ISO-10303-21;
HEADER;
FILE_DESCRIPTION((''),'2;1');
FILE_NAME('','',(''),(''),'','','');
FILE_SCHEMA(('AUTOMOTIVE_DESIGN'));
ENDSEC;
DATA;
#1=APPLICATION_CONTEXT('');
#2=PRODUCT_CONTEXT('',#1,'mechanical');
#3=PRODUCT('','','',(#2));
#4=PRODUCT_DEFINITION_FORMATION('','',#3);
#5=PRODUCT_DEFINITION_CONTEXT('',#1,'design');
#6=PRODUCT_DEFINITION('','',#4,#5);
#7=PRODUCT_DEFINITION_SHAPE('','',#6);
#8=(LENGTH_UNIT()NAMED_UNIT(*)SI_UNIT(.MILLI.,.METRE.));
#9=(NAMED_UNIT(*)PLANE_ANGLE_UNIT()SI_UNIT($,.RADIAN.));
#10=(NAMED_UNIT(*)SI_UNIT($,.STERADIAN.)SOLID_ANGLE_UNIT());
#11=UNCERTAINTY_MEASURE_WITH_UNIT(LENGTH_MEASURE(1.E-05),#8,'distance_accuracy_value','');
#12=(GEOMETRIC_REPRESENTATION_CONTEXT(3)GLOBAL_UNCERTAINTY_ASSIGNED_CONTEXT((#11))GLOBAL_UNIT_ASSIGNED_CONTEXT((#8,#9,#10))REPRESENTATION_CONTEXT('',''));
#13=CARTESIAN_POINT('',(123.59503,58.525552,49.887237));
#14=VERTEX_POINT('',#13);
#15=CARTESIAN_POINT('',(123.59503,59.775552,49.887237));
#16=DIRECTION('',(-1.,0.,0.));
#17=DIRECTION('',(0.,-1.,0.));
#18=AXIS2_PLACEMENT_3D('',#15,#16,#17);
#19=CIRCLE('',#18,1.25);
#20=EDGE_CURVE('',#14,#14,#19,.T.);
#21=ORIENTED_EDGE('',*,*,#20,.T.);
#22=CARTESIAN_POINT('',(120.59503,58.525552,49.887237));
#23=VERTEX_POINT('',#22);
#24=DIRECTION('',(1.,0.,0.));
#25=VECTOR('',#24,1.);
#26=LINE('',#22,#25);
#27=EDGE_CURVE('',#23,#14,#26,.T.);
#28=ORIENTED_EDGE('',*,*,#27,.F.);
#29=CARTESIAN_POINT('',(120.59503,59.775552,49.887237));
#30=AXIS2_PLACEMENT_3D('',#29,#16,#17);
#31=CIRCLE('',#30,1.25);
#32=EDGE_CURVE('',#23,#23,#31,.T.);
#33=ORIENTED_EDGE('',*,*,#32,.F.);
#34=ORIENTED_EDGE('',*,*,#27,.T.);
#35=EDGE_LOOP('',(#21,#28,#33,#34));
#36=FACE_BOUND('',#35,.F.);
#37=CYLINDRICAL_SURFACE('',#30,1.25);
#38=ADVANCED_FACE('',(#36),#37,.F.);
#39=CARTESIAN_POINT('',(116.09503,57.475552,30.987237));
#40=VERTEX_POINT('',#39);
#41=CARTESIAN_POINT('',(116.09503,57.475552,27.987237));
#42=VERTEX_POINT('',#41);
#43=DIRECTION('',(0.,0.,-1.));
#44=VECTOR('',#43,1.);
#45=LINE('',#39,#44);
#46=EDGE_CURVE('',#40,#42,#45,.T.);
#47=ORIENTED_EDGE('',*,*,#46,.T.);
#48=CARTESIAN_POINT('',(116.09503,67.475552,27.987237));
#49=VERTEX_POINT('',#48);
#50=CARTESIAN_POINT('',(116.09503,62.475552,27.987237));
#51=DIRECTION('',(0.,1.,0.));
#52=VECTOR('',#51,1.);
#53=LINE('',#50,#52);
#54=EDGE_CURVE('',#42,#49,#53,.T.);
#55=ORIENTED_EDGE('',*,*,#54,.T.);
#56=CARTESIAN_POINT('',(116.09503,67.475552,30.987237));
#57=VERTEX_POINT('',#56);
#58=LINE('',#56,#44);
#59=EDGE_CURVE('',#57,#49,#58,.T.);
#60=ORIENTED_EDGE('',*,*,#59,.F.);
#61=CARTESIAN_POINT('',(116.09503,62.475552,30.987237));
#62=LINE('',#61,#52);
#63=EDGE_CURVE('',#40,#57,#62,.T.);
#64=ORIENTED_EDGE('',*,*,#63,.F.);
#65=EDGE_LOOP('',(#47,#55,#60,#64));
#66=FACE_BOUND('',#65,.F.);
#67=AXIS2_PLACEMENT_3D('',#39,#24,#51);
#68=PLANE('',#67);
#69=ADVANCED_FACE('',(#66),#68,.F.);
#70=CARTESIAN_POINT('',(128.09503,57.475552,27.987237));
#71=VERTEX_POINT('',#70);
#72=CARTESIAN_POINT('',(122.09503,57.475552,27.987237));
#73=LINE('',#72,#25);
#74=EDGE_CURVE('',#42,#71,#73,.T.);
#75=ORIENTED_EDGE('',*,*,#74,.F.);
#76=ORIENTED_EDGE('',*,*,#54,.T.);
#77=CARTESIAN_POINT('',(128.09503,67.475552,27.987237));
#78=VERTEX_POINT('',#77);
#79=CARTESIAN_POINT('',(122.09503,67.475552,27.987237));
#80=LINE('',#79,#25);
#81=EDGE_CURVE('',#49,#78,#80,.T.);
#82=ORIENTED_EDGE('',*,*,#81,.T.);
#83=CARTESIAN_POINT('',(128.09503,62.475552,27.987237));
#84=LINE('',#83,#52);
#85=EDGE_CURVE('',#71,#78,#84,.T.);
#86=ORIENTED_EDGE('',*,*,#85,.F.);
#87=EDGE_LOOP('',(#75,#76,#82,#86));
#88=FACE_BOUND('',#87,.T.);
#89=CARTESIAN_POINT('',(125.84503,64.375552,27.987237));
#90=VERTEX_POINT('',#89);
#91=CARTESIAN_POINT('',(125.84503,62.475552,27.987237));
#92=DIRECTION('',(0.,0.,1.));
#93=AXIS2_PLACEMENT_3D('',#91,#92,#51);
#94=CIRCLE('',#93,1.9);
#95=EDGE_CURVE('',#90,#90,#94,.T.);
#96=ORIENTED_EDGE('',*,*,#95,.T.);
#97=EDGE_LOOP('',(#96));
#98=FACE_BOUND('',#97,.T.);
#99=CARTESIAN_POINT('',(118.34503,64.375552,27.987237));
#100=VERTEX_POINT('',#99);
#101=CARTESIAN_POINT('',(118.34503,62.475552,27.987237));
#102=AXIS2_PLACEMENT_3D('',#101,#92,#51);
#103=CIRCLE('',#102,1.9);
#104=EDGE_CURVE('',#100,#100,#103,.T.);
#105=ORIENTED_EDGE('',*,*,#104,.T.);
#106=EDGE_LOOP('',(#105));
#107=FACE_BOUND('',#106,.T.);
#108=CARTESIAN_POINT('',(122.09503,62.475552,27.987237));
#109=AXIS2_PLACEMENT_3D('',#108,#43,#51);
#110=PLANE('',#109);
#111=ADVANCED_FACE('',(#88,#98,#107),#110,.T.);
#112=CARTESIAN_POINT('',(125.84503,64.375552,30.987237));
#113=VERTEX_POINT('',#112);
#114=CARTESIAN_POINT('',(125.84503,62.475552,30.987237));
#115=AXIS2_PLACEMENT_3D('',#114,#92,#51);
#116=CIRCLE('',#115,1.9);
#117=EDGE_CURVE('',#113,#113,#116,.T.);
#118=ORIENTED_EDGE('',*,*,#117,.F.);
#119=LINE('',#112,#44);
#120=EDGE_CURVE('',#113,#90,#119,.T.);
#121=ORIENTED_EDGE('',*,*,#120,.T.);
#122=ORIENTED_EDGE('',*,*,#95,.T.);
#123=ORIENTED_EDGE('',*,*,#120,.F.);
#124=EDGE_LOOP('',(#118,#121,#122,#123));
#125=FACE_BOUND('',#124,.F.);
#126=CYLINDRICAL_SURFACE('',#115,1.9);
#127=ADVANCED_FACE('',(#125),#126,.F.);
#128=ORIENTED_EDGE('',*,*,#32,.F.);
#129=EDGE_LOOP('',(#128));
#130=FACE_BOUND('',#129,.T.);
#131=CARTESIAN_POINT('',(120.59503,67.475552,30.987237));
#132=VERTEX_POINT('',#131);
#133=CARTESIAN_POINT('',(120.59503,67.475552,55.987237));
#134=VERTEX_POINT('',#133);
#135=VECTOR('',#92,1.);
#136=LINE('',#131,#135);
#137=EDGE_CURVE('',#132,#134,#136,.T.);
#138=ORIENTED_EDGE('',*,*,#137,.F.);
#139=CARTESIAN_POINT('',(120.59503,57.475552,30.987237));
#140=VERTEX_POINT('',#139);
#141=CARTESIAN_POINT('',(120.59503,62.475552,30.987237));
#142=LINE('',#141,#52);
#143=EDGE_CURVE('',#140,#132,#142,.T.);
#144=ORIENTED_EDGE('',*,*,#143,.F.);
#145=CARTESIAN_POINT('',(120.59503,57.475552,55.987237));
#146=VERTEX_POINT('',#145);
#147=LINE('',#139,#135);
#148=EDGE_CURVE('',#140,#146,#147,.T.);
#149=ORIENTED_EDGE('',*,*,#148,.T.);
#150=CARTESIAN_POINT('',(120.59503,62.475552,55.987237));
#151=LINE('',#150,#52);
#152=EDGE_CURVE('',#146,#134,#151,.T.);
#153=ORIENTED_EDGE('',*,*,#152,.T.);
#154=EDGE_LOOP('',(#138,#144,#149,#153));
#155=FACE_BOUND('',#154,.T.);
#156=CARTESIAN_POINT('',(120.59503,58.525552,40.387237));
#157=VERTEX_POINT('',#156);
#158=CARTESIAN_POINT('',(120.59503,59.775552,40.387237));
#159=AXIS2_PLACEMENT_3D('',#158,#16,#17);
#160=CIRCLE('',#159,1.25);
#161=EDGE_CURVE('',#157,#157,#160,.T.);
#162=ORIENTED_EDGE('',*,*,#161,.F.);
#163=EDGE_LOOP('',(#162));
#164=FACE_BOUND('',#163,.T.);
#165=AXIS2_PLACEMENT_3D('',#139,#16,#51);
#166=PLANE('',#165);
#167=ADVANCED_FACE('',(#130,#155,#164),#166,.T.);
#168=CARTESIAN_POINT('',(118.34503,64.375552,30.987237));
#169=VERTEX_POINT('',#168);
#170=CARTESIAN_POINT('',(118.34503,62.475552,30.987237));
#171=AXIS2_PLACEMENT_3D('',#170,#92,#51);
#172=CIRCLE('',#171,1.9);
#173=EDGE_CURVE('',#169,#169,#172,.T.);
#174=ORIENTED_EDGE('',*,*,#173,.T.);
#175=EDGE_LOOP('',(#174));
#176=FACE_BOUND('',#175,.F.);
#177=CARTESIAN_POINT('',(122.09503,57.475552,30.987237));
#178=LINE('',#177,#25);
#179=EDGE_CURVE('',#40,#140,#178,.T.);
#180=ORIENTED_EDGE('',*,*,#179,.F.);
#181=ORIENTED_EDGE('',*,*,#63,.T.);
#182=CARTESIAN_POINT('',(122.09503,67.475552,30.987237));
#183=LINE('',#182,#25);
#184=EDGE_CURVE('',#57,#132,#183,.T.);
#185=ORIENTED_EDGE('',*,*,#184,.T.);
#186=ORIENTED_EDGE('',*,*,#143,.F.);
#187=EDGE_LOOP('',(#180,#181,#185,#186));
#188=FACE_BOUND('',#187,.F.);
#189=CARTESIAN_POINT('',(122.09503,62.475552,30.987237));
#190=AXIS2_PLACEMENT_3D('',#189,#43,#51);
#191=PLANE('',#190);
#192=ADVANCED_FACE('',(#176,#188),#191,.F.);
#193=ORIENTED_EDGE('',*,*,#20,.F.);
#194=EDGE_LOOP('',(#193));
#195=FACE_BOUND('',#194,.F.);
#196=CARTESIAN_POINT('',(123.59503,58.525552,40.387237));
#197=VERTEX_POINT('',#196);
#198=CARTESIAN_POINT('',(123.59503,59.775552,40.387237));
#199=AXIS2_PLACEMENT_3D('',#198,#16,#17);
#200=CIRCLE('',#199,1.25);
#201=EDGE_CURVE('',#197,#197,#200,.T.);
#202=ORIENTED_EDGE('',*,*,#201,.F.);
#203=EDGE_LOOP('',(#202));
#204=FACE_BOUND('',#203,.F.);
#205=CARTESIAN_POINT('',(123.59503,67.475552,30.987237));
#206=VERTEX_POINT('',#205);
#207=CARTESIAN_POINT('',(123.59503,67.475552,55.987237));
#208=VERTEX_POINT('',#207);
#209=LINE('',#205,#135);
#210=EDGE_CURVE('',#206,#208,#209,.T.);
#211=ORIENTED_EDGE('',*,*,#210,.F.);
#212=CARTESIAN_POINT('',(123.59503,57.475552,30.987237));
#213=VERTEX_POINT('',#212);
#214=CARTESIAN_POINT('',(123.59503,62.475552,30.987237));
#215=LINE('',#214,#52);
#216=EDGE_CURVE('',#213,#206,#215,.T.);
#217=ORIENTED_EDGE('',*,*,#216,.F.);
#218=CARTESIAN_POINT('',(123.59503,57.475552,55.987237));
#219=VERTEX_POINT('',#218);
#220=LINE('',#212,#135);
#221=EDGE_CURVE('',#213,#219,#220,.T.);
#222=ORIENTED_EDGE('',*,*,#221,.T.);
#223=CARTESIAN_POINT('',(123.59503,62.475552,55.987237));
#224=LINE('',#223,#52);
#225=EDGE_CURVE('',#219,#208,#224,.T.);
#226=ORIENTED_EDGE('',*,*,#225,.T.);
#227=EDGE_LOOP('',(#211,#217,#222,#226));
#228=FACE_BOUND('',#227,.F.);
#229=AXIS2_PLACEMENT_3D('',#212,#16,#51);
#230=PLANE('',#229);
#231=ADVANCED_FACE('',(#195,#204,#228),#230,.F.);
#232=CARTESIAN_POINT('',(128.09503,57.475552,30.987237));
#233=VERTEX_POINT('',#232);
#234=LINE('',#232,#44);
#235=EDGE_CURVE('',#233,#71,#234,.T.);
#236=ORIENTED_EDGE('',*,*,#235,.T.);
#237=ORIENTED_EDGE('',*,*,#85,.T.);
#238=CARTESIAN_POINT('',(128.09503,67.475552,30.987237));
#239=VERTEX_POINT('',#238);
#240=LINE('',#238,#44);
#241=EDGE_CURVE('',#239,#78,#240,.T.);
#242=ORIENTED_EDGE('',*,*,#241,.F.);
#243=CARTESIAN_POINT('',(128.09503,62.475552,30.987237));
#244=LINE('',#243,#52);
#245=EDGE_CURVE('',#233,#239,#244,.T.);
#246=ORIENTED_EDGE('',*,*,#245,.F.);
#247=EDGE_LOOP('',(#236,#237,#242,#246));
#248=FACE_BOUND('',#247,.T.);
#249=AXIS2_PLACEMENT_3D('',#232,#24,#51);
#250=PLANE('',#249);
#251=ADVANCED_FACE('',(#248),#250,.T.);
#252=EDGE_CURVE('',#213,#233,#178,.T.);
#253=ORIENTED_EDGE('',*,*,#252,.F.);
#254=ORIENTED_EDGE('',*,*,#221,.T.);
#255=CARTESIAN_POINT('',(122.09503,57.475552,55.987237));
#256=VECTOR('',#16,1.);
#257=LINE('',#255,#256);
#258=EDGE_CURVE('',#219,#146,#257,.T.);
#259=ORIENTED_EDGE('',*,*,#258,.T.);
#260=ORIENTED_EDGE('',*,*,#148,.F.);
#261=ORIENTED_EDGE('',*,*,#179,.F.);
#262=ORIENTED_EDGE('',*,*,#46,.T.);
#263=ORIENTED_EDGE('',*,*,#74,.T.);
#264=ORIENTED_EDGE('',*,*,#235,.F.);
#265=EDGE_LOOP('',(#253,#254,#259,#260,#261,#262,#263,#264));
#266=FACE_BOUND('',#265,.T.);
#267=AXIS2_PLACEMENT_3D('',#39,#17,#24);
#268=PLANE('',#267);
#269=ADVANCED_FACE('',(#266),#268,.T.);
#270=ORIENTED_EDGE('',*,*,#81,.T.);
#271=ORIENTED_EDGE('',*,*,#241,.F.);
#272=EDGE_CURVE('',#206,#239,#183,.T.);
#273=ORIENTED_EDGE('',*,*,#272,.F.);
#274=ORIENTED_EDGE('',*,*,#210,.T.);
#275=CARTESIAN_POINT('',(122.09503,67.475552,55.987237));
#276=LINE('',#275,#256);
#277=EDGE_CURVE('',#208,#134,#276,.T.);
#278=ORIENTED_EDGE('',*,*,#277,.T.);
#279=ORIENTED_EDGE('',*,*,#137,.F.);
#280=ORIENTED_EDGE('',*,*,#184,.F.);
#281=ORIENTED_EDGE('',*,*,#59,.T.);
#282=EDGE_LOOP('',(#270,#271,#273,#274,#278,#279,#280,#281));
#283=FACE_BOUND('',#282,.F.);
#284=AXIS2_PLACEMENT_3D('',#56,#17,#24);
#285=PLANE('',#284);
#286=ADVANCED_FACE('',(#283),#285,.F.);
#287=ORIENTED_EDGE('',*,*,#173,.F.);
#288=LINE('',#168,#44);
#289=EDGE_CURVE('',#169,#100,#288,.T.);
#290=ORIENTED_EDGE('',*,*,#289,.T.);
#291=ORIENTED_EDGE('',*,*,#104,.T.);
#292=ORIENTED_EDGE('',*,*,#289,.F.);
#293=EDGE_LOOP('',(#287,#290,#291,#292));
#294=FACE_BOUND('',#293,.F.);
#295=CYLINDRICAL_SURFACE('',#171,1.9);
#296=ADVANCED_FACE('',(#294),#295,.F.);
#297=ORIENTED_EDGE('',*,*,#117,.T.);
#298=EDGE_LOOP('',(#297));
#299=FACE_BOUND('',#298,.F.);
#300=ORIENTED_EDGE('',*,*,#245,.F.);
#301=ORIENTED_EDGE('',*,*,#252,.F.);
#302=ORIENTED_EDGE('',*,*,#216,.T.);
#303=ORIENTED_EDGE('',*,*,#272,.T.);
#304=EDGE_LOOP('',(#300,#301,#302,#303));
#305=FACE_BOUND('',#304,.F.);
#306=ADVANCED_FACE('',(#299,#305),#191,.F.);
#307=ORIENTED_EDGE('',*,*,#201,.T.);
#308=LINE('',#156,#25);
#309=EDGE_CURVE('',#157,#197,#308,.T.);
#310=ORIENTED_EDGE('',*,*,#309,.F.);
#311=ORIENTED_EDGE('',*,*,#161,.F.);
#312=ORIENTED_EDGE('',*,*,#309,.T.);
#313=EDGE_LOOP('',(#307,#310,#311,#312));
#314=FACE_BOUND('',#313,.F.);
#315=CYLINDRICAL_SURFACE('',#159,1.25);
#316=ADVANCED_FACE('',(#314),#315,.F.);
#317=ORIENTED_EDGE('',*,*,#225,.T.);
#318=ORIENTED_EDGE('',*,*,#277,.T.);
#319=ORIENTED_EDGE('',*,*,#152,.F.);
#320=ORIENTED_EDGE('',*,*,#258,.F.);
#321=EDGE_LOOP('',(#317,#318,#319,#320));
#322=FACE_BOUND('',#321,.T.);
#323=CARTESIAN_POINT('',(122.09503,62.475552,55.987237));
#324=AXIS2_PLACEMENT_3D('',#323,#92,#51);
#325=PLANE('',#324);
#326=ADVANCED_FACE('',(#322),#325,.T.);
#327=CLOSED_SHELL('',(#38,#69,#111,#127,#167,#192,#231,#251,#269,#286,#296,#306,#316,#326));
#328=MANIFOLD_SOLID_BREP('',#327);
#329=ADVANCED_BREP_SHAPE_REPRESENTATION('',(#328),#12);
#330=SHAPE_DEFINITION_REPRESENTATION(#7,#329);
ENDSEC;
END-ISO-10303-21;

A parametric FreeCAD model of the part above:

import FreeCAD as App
import Part
import Sketcher

V = App.Vector
Q = App.Units.Quantity


def add_polygon(sketch, points):
    """Adds a closed chain of lines whose ends are joined by coincident constraints."""
    first, n = sketch.GeometryCount, len(points)
    for a, b in zip(points, points[1:] + points[:1]):
        sketch.addGeometry(Part.LineSegment(App.Vector(*a, 0), App.Vector(*b, 0)), False)
    for i in range(n):
        sketch.addConstraint(Sketcher.Constraint("Coincident", first + i, 2, first + (i + 1) % n, 1))

doc = App.newDocument("Part")
params = doc.addObject("Spreadsheet::Sheet", "Params")
for row, (alias, value) in enumerate([
    ("sketch1_width", "10 mm"),
    ("sketch1_height", "3 mm"),
    ("pad1_length", "25 mm"),
    ("sketch2_diameter", "2.5 mm"),
    ("pocket1_length", "5 mm"),
    ("sketch3_width", "10 mm"),
    ("sketch3_height", "12 mm"),
    ("pad2_length", "3 mm"),
    ("sketch4_diameter", "3.8 mm"),
], start=1):
    params.set(f"A{row}", alias)
    params.set(f"B{row}", "=" + value)
    params.setAlias(f"B{row}", alias)

body = doc.addObject("PartDesign::Body", "Body")

# Sketch on XZ plane
sketch1 = body.newObject("Sketcher::SketchObject", "Sketch")
sketch1.AttachmentSupport = (doc.getObject("XZ_Plane"), [""])
sketch1.MapMode = "FlatFace"
add_polygon(sketch1, [(0, 3), (0, 0), (10, 0), (10, 3)])  # lines 0-3
sketch1.addConstraint(Sketcher.Constraint("Vertical", 0))
sketch1.addConstraint(Sketcher.Constraint("Horizontal", 1))
sketch1.addConstraint(Sketcher.Constraint("Vertical", 2))
sketch1.addConstraint(Sketcher.Constraint("Horizontal", 3))
sketch1.addConstraint(Sketcher.Constraint("Coincident", 0, 2, -1, 1))
sketch1.addConstraint(Sketcher.Constraint("DistanceX", 1, 1, 1, 2, Q("10 mm")))
sketch1.addConstraint(Sketcher.Constraint("DistanceY", 0, 2, 0, 1, Q("3 mm")))
sketch1.setExpression("Constraints[9]", "Params.sketch1_width")
sketch1.setExpression("Constraints[10]", "Params.sketch1_height")
pad1 = body.newObject("PartDesign::Pad", "Pad")
pad1.Profile = sketch1
pad1.setExpression("Length", "Params.pad1_length")

# Sketch on XY plane
sketch2 = body.newObject("Sketcher::SketchObject", "Sketch001")
sketch2.AttachmentSupport = (doc.getObject("XY_Plane"), [""])
sketch2.MapMode = "FlatFace"
sketch2.AttachmentOffset = App.Placement(V(0, 0, 3), App.Rotation())
sketch2.addGeometry(Part.Circle(V(2.3, -18.9, 0), V(0, 0, 1), 1.2), False)
sketch2.addGeometry(Part.Circle(V(2.3, -9.4, 0), V(0, 0, 1), 1.2), False)
sketch2.addConstraint(Sketcher.Constraint("Equal", 0, 1))
sketch2.addConstraint(Sketcher.Constraint("Vertical", 0, 3, 1, 3))
sketch2.addConstraint(Sketcher.Constraint("Diameter", 0, Q("2.5 mm")))
sketch2.addConstraint(Sketcher.Constraint("DistanceX", -1, 1, 0, 3, Q("2.3 mm")))
sketch2.addConstraint(Sketcher.Constraint("DistanceY", 0, 3, -1, 1, Q("18.9 mm")))
sketch2.addConstraint(Sketcher.Constraint("DistanceY", 1, 3, -1, 1, Q("9.4 mm")))
sketch2.setExpression("Constraints[2]", "Params.sketch2_diameter")
pocket1 = body.newObject("PartDesign::Pocket", "Pocket")
pocket1.Profile = sketch2
pocket1.setExpression("Length", "Params.pocket1_length")

# Sketch on XZ plane
sketch3 = body.newObject("Sketcher::SketchObject", "Sketch002")
sketch3.AttachmentSupport = (doc.getObject("XZ_Plane"), [""])
sketch3.MapMode = "FlatFace"
add_polygon(sketch3, [(0, -4), (0, 8), (10, 8), (10, -4)])  # lines 0-3
sketch3.addConstraint(Sketcher.Constraint("Vertical", 0))
sketch3.addConstraint(Sketcher.Constraint("Horizontal", 1))
sketch3.addConstraint(Sketcher.Constraint("Vertical", 2))
sketch3.addConstraint(Sketcher.Constraint("Horizontal", 3))
sketch3.addConstraint(Sketcher.Constraint("PointOnObject", 0, 2, -2))
sketch3.addConstraint(Sketcher.Constraint("DistanceX", 1, 1, 1, 2, Q("10 mm")))
sketch3.addConstraint(Sketcher.Constraint("DistanceY", 0, 1, 0, 2, Q("12 mm")))
sketch3.addConstraint(Sketcher.Constraint("DistanceY", -1, 1, 0, 2, Q("7.5 mm")))
sketch3.setExpression("Constraints[9]", "Params.sketch3_width")
sketch3.setExpression("Constraints[10]", "Params.sketch3_height")
pad2 = body.newObject("PartDesign::Pad", "Pad001")
pad2.Profile = sketch3
pad2.setExpression("Length", "Params.pad2_length")
pad2.Reversed = True

# Sketch on XZ plane
sketch4 = body.newObject("Sketcher::SketchObject", "Sketch003")
sketch4.AttachmentSupport = (doc.getObject("XZ_Plane"), [""])
sketch4.MapMode = "FlatFace"
sketch4.addGeometry(Part.Circle(V(5, -2.2, 0), V(0, 0, 1), 1.9), False)
sketch4.addGeometry(Part.Circle(V(5, 5.2, 0), V(0, 0, 1), 1.9), False)
sketch4.addConstraint(Sketcher.Constraint("Equal", 0, 1))
sketch4.addConstraint(Sketcher.Constraint("Vertical", 0, 3, 1, 3))
sketch4.addConstraint(Sketcher.Constraint("Diameter", 0, Q("3.8 mm")))
sketch4.addConstraint(Sketcher.Constraint("DistanceX", -1, 1, 0, 3, Q("5 mm")))
sketch4.addConstraint(Sketcher.Constraint("DistanceY", 0, 3, 1, 3, Q("7.5 mm")))
sketch4.addConstraint(Sketcher.Constraint("DistanceY", 0, 3, -1, 1, Q("2.25 mm")))
sketch4.setExpression("Constraints[2]", "Params.sketch4_diameter")
pocket2 = body.newObject("PartDesign::Pocket", "Pocket001")
pocket2.Profile = sketch4
pocket2.Type = "ThroughAll"
body2 = doc.addObject("PartDesign::Body", "Body001")
doc.recompute()

body.Placement = App.Placement(V(0, 0, 0), App.Rotation(V(1, 0, 0), 270))
boolean = body2.newObject("PartDesign::Boolean", "Boolean")
boolean.Type = "Fuse"
boolean.addObjects([body])
body3 = doc.addObject("PartDesign::Body", "Body002")
doc.recompute()

body2.Placement = App.Placement(V(123.59503, 57.475552, 30.987237), App.Rotation(V(0, 0, 1), 90))
boolean2 = body3.newObject("PartDesign::Boolean", "Boolean001")
boolean2.Type = "Fuse"
boolean2.addObjects([body2])

doc.recompute()
